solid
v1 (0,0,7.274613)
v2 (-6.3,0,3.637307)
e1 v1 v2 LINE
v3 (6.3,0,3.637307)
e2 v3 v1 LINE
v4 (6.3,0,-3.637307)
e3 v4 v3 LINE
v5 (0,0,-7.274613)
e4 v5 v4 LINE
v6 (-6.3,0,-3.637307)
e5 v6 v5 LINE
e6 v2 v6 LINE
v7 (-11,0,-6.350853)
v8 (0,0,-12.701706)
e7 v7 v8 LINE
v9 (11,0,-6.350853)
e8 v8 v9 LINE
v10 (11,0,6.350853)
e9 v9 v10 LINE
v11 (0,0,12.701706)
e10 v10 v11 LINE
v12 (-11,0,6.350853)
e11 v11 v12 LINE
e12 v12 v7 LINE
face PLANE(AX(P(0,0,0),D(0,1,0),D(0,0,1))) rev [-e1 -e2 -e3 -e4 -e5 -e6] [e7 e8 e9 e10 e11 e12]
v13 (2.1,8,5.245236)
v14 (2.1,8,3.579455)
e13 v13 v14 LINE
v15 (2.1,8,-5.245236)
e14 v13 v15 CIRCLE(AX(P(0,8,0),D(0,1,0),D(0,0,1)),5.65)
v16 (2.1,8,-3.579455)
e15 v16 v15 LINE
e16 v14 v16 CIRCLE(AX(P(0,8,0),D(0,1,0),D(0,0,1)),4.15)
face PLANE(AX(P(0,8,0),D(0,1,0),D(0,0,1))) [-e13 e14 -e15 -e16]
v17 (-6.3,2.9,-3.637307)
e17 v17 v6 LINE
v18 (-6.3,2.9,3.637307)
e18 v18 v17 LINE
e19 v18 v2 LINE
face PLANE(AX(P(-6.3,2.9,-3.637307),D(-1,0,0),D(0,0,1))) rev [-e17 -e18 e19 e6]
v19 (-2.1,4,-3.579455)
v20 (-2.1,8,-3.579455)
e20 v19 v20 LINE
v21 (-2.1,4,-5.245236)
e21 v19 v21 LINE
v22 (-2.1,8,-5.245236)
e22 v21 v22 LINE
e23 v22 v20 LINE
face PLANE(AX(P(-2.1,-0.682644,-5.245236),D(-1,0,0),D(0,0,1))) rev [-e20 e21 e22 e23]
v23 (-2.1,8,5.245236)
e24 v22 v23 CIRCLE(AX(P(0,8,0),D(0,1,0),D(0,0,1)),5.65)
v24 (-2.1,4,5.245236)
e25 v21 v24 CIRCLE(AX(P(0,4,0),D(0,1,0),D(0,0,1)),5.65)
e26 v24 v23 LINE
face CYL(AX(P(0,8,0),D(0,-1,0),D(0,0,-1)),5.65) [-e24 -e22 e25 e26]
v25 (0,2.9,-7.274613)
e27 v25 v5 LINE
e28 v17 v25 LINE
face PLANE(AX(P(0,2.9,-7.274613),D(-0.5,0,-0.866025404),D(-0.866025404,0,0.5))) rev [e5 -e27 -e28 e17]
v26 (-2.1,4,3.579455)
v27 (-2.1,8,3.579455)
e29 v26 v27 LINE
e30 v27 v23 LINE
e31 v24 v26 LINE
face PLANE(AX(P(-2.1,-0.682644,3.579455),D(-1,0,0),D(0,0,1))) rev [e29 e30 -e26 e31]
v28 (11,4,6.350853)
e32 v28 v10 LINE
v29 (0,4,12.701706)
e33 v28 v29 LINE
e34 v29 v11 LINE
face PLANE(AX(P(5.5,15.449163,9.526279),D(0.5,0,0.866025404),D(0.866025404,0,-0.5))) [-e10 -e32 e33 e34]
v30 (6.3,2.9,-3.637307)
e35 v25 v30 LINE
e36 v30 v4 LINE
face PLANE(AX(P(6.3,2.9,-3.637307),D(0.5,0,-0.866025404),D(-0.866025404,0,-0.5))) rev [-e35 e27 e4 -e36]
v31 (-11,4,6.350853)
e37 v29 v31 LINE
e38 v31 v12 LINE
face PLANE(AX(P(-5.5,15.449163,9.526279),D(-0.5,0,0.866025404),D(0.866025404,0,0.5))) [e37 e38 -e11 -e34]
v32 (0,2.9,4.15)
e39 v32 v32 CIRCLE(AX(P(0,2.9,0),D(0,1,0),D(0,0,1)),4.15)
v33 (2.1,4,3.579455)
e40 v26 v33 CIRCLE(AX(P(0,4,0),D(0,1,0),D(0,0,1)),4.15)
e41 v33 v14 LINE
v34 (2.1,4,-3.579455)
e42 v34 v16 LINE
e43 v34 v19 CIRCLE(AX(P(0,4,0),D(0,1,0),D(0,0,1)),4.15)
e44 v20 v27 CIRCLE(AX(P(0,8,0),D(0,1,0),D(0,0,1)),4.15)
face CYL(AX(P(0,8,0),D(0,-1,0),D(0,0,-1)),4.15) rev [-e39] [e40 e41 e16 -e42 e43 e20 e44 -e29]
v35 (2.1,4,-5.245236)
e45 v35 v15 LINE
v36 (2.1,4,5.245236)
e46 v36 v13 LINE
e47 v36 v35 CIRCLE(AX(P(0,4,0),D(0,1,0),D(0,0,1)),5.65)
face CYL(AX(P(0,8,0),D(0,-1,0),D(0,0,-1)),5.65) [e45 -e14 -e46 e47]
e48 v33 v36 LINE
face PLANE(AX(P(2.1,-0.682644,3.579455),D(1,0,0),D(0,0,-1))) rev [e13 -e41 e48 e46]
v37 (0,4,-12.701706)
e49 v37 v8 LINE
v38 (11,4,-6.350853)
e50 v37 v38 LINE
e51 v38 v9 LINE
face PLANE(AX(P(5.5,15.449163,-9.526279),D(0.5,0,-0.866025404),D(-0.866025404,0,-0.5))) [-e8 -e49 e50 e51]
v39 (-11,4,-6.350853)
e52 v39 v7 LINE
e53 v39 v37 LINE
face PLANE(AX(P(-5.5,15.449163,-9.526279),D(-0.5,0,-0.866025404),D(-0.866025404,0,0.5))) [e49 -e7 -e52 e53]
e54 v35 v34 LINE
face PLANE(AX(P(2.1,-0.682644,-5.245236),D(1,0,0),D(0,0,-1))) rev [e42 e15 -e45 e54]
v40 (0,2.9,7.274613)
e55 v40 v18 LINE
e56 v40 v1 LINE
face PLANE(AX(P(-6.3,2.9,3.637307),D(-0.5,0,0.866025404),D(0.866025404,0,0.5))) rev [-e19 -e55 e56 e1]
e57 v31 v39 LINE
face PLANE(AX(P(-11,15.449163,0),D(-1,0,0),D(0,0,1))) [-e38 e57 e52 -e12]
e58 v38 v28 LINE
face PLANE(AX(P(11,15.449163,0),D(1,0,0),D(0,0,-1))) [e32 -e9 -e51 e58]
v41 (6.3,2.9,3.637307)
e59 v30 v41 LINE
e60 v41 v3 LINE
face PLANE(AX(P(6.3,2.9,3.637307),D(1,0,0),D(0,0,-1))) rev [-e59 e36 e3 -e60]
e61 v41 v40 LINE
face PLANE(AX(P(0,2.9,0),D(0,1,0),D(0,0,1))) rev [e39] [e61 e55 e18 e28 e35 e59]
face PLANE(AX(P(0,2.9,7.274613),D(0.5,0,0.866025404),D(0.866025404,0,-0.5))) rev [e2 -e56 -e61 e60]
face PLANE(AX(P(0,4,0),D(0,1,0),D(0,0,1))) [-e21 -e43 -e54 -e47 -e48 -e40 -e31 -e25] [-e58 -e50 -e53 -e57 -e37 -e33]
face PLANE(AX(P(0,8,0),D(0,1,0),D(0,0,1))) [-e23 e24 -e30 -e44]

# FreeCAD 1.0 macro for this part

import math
import FreeCAD as App
import Part
import Sketcher
from FreeCAD import Vector
Q = App.Units.Quantity

doc = App.newDocument("Part")
body = doc.addObject("PartDesign::Body", "Body")

# Sketch on XZ plane
sketch1 = body.newObject("Sketcher::SketchObject", "Sketch")
sketch1.AttachmentSupport = (doc.getObject("XZ_Plane"), [""])
sketch1.MapMode = "FlatFace"
sketch1.addGeometry(Part.Circle(Vector(0, 0, 0), Vector(0, 0, 1), 5.65), False)
sketch1.addGeometry(Part.Circle(Vector(0, 0, 0), Vector(0, 0, 1), 4.15), False)
sketch1.addConstraint(Sketcher.Constraint("Coincident", 0, 3, -1, 1))
sketch1.addConstraint(Sketcher.Constraint("Coincident", 1, 3, -1, 1))
sketch1.addConstraint(Sketcher.Constraint("Diameter", 0, 11.3))
sketch1.addConstraint(Sketcher.Constraint("Diameter", 1, 8.3))
pad1 = body.newObject("PartDesign::Pad", "Pad")
pad1.Profile = sketch1
pad1.Length = 8
pad1.Reversed = True

# Sketch on XZ plane
sketch2 = body.newObject("Sketcher::SketchObject", "Sketch001")
sketch2.AttachmentSupport = (doc.getObject("XZ_Plane"), [""])
sketch2.MapMode = "FlatFace"
sketch2.addGeometry(Part.Circle(Vector(0, 0, 0), Vector(0, 0, 1), 11), False)
sketch2.addGeometry(Part.Circle(Vector(0, 0, 0), Vector(0, 0, 1), 5.65), False)
sketch2.addConstraint(Sketcher.Constraint("Coincident", 0, 3, -1, 1))
sketch2.addConstraint(Sketcher.Constraint("Coincident", 1, 3, -1, 1))
sketch2.addConstraint(Sketcher.Constraint("Diameter", 0, 22.0))
sketch2.addConstraint(Sketcher.Constraint("Diameter", 1, 11.3))
pad2 = body.newObject("PartDesign::Pad", "Pad001")
pad2.Profile = sketch2
pad2.Length = 4
pad2.Reversed = True

# Sketch on XZ plane
sketch3 = body.newObject("Sketcher::SketchObject", "Sketch002")
sketch3.AttachmentSupport = (doc.getObject("XZ_Plane"), [""])
sketch3.MapMode = "FlatFace"
sketch3.addGeometry(Part.LineSegment(Vector(-6.3, -3.637307, 0), Vector(0, -7.274613, 0)), False)
sketch3.addGeometry(Part.LineSegment(Vector(0, -7.274613, 0), Vector(6.3, -3.637307, 0)), False)
sketch3.addGeometry(Part.LineSegment(Vector(6.3, -3.637307, 0), Vector(6.3, 3.637307, 0)), False)
sketch3.addGeometry(Part.LineSegment(Vector(6.3, 3.637307, 0), Vector(0, 7.274613, 0)), False)
sketch3.addGeometry(Part.LineSegment(Vector(0, 7.274613, 0), Vector(-6.3, 3.637307, 0)), False)
sketch3.addGeometry(Part.LineSegment(Vector(-6.3, 3.637307, 0), Vector(-6.3, -3.637307, 0)), False)
sketch3.addConstraint(Sketcher.Constraint("Coincident", 0, 2, 1, 1))
sketch3.addConstraint(Sketcher.Constraint("Coincident", 1, 2, 2, 1))
sketch3.addConstraint(Sketcher.Constraint("Coincident", 2, 2, 3, 1))
sketch3.addConstraint(Sketcher.Constraint("Coincident", 3, 2, 4, 1))
sketch3.addConstraint(Sketcher.Constraint("Coincident", 4, 2, 5, 1))
sketch3.addConstraint(Sketcher.Constraint("Coincident", 5, 2, 0, 1))
sketch3.addConstraint(Sketcher.Constraint("Vertical", 2))
sketch3.addConstraint(Sketcher.Constraint("Vertical", 5))
sketch3.addConstraint(Sketcher.Constraint("Symmetric", 0, 2, 3, 2, -1, 1))
sketch3.addConstraint(Sketcher.Constraint("Symmetric", 1, 2, 4, 2, -1, 1))
sketch3.addConstraint(Sketcher.Constraint("PointOnObject", 0, 2, -2))
sketch3.addConstraint(Sketcher.Constraint("Parallel", 0, 3))
sketch3.addConstraint(Sketcher.Constraint("Horizontal", 2, 2, 4, 2))
sketch3.addConstraint(Sketcher.Constraint("Angle", 0, Q("-30 deg")))
sketch3.addConstraint(Sketcher.Constraint("DistanceX", -1, 1, 1, 2, 6.3))
sketch3.addConstraint(Sketcher.Constraint("DistanceY", 2, 1, 2, 2, 7.274613))
pocket1 = body.newObject("PartDesign::Pocket", "Pocket")
pocket1.Profile = sketch3
pocket1.Length = 2.9

# Sketch on XZ plane
sketch4 = body.newObject("Sketcher::SketchObject", "Sketch003")
sketch4.AttachmentSupport = (doc.getObject("XZ_Plane"), [""])
sketch4.MapMode = "FlatFace"
sketch4.AttachmentOffset = App.Placement(Vector(0, 0, -4), App.Rotation())
sketch4.addGeometry(Part.LineSegment(Vector(-2.1, -5.245236, 0), Vector(-2.1, -3.579455, 0)), False)
sketch4.addGeometry(Part.ArcOfCircle(Part.Circle(Vector(0, 0, 0), Vector(0, 0, 1), 4.15), math.radians(-120.399358), math.radians(-59.600642)), False)
sketch4.addGeometry(Part.LineSegment(Vector(2.1, -3.579455, 0), Vector(2.1, -5.245236, 0)), False)
sketch4.addGeometry(Part.ArcOfCircle(Part.Circle(Vector(0, 0, 0), Vector(0, 0, 1), 5.65), math.radians(-111.819352), math.radians(-68.180648)), False)
sketch4.addGeometry(Part.LineSegment(Vector(2.1, 5.245236, 0), Vector(2.1, 3.579455, 0)), False)
sketch4.addGeometry(Part.ArcOfCircle(Part.Circle(Vector(0, 0, 0), Vector(0, 0, 1), 4.15), math.radians(59.600642), math.radians(120.399358)), False)
sketch4.addGeometry(Part.LineSegment(Vector(-2.1, 3.579455, 0), Vector(-2.1, 5.245236, 0)), False)
sketch4.addGeometry(Part.ArcOfCircle(Part.Circle(Vector(0, 0, 0), Vector(0, 0, 1), 5.65), math.radians(68.180648), math.radians(111.819352)), False)
sketch4.addConstraint(Sketcher.Constraint("Coincident", 0, 2, 1, 1))
sketch4.addConstraint(Sketcher.Constraint("Coincident", 1, 2, 2, 1))
sketch4.addConstraint(Sketcher.Constraint("Coincident", 2, 2, 3, 2))
sketch4.addConstraint(Sketcher.Constraint("Coincident", 3, 1, 0, 1))
sketch4.addConstraint(Sketcher.Constraint("Coincident", 4, 2, 5, 1))
sketch4.addConstraint(Sketcher.Constraint("Coincident", 5, 2, 6, 1))
sketch4.addConstraint(Sketcher.Constraint("Coincident", 6, 2, 7, 2))
sketch4.addConstraint(Sketcher.Constraint("Coincident", 7, 1, 4, 1))
sketch4.addConstraint(Sketcher.Constraint("Vertical", 0))
sketch4.addConstraint(Sketcher.Constraint("Vertical", 2))
sketch4.addConstraint(Sketcher.Constraint("Vertical", 4))
sketch4.addConstraint(Sketcher.Constraint("Vertical", 6))
sketch4.addConstraint(Sketcher.Constraint("Coincident", 1, 3, -1, 1))
sketch4.addConstraint(Sketcher.Constraint("Coincident", 3, 3, -1, 1))
sketch4.addConstraint(Sketcher.Constraint("Coincident", 5, 3, -1, 1))
sketch4.addConstraint(Sketcher.Constraint("Coincident", 7, 3, -1, 1))
sketch4.addConstraint(Sketcher.Constraint("Equal", 1, 5))
sketch4.addConstraint(Sketcher.Constraint("Equal", 3, 7))
sketch4.addConstraint(Sketcher.Constraint("Horizontal", 0, 2, 1, 2))
sketch4.addConstraint(Sketcher.Constraint("Horizontal", 4, 2, 5, 2))
sketch4.addConstraint(Sketcher.Constraint("Vertical", 2, 2, 4, 2))
sketch4.addConstraint(Sketcher.Constraint("Radius", 1, 4.15))
sketch4.addConstraint(Sketcher.Constraint("Radius", 3, 5.65))
sketch4.addConstraint(Sketcher.Constraint("DistanceX", 0, 2, -1, 1, 2.1))
pocket2 = body.newObject("PartDesign::Pocket", "Pocket001")
pocket2.Profile = sketch4
pocket2.Length = 4

# Sketch on XZ plane
sketch5 = body.newObject("Sketcher::SketchObject", "Sketch004")
sketch5.AttachmentSupport = (doc.getObject("XZ_Plane"), [""])
sketch5.MapMode = "FlatFace"
sketch5.addGeometry(Part.LineSegment(Vector(5.5, -9.526279, 0), Vector(11, -6.350853, 0)), False)
sketch5.addGeometry(Part.LineSegment(Vector(11, -6.350853, 0), Vector(11, 0, 0)), False)
sketch5.addGeometry(Part.ArcOfCircle(Part.Circle(Vector(0, 0, 0), Vector(0, 0, 1), 11), math.radians(-59.999997), math.radians(0)), False)
sketch5.addGeometry(Part.LineSegment(Vector(0, -12.701706, 0), Vector(5.5, -9.526279, 0)), False)
sketch5.addGeometry(Part.ArcOfCircle(Part.Circle(Vector(0, 0, 0), Vector(0, 0, 1), 11), math.radians(-120.000003), math.radians(-59.999997)), False)
sketch5.addGeometry(Part.LineSegment(Vector(-5.5, -9.526279, 0), Vector(0, -12.701706, 0)), False)
sketch5.addGeometry(Part.LineSegment(Vector(-11, -6.350853, 0), Vector(-5.5, -9.526279, 0)), False)
sketch5.addGeometry(Part.ArcOfCircle(Part.Circle(Vector(0, 0, 0), Vector(0, 0, 1), 11), math.radians(180), math.radians(239.999997)), False)
sketch5.addGeometry(Part.LineSegment(Vector(-11, 0, 0), Vector(-11, -6.350853, 0)), False)
sketch5.addGeometry(Part.ArcOfCircle(Part.Circle(Vector(0, 0, 0), Vector(0, 0, 1), 11), math.radians(120.000003), math.radians(180)), False)
sketch5.addGeometry(Part.LineSegment(Vector(-5.5, 9.526279, 0), Vector(-11, 6.350853, 0)), False)
sketch5.addGeometry(Part.LineSegment(Vector(-11, 6.350853, 0), Vector(-11, 0, 0)), False)
sketch5.addGeometry(Part.ArcOfCircle(Part.Circle(Vector(0, 0, 0), Vector(0, 0, 1), 11), math.radians(59.999996), math.radians(120.000003)), False)
sketch5.addGeometry(Part.LineSegment(Vector(5.500001, 9.526279, 0), Vector(0, 12.701706, 0)), False)
sketch5.addGeometry(Part.LineSegment(Vector(0, 12.701706, 0), Vector(-5.5, 9.526279, 0)), False)
sketch5.addGeometry(Part.ArcOfCircle(Part.Circle(Vector(0, 0, 0), Vector(0, 0, 1), 11), math.radians(0), math.radians(59.999996)), False)
sketch5.addGeometry(Part.LineSegment(Vector(11, 0, 0), Vector(11, 6.350853, 0)), False)
sketch5.addGeometry(Part.LineSegment(Vector(11, 6.350853, 0), Vector(5.500001, 9.526279, 0)), False)
sketch5.addConstraint(Sketcher.Constraint("Coincident", 0, 2, 1, 1))
sketch5.addConstraint(Sketcher.Constraint("Tangent", 1, 2, 2, 2))
sketch5.addConstraint(Sketcher.Constraint("Tangent", 2, 1, 0, 1))
sketch5.addConstraint(Sketcher.Constraint("Tangent", 3, 2, 4, 2))
sketch5.addConstraint(Sketcher.Constraint("Tangent", 4, 1, 5, 1))
sketch5.addConstraint(Sketcher.Constraint("Coincident", 5, 2, 3, 1))
sketch5.addConstraint(Sketcher.Constraint("Tangent", 6, 2, 7, 2))
sketch5.addConstraint(Sketcher.Constraint("Tangent", 7, 1, 8, 1))
sketch5.addConstraint(Sketcher.Constraint("Coincident", 8, 2, 6, 1))
sketch5.addConstraint(Sketcher.Constraint("Tangent", 9, 1, 10, 1))
sketch5.addConstraint(Sketcher.Constraint("Coincident", 10, 2, 11, 1))
sketch5.addConstraint(Sketcher.Constraint("Tangent", 11, 2, 9, 2))
sketch5.addConstraint(Sketcher.Constraint("Tangent", 12, 1, 13, 1))
sketch5.addConstraint(Sketcher.Constraint("Coincident", 13, 2, 14, 1))
sketch5.addConstraint(Sketcher.Constraint("Tangent", 14, 2, 12, 2))
sketch5.addConstraint(Sketcher.Constraint("Tangent", 15, 1, 16, 1))
sketch5.addConstraint(Sketcher.Constraint("Coincident", 16, 2, 17, 1))
sketch5.addConstraint(Sketcher.Constraint("Tangent", 17, 2, 15, 2))
sketch5.addConstraint(Sketcher.Constraint("Vertical", 1))
sketch5.addConstraint(Sketcher.Constraint("Vertical", 8))
sketch5.addConstraint(Sketcher.Constraint("Vertical", 11))
sketch5.addConstraint(Sketcher.Constraint("Vertical", 16))
sketch5.addConstraint(Sketcher.Constraint("Coincident", 2, 3, -1, 1))
sketch5.addConstraint(Sketcher.Constraint("Coincident", 4, 3, -1, 1))
sketch5.addConstraint(Sketcher.Constraint("Coincident", 7, 3, -1, 1))
sketch5.addConstraint(Sketcher.Constraint("Coincident", 9, 3, -1, 1))
sketch5.addConstraint(Sketcher.Constraint("Coincident", 12, 3, -1, 1))
sketch5.addConstraint(Sketcher.Constraint("Coincident", 15, 3, -1, 1))
sketch5.addConstraint(Sketcher.Constraint("Coincident", 3, 2, 2, 1))
sketch5.addConstraint(Sketcher.Constraint("Coincident", 6, 2, 4, 1))
sketch5.addConstraint(Sketcher.Constraint("Coincident", 14, 2, 9, 1))
sketch5.addConstraint(Sketcher.Constraint("Coincident", 17, 2, 12, 1))
sketch5.addConstraint(Sketcher.Constraint("Equal", 7, 9))
sketch5.addConstraint(Sketcher.Constraint("Symmetric", 5, 2, 13, 2, -1, 1))
sketch5.addConstraint(Sketcher.Constraint("PointOnObject", 5, 2, -2))
sketch5.addConstraint(Sketcher.Constraint("Equal", 0, 3))
sketch5.addConstraint(Sketcher.Constraint("Radius", 2, 11.0))
pad3 = body.newObject("PartDesign::Pad", "Pad002")
pad3.Profile = sketch5
pad3.Length = 4
pad3.Reversed = True

doc.recompute()
